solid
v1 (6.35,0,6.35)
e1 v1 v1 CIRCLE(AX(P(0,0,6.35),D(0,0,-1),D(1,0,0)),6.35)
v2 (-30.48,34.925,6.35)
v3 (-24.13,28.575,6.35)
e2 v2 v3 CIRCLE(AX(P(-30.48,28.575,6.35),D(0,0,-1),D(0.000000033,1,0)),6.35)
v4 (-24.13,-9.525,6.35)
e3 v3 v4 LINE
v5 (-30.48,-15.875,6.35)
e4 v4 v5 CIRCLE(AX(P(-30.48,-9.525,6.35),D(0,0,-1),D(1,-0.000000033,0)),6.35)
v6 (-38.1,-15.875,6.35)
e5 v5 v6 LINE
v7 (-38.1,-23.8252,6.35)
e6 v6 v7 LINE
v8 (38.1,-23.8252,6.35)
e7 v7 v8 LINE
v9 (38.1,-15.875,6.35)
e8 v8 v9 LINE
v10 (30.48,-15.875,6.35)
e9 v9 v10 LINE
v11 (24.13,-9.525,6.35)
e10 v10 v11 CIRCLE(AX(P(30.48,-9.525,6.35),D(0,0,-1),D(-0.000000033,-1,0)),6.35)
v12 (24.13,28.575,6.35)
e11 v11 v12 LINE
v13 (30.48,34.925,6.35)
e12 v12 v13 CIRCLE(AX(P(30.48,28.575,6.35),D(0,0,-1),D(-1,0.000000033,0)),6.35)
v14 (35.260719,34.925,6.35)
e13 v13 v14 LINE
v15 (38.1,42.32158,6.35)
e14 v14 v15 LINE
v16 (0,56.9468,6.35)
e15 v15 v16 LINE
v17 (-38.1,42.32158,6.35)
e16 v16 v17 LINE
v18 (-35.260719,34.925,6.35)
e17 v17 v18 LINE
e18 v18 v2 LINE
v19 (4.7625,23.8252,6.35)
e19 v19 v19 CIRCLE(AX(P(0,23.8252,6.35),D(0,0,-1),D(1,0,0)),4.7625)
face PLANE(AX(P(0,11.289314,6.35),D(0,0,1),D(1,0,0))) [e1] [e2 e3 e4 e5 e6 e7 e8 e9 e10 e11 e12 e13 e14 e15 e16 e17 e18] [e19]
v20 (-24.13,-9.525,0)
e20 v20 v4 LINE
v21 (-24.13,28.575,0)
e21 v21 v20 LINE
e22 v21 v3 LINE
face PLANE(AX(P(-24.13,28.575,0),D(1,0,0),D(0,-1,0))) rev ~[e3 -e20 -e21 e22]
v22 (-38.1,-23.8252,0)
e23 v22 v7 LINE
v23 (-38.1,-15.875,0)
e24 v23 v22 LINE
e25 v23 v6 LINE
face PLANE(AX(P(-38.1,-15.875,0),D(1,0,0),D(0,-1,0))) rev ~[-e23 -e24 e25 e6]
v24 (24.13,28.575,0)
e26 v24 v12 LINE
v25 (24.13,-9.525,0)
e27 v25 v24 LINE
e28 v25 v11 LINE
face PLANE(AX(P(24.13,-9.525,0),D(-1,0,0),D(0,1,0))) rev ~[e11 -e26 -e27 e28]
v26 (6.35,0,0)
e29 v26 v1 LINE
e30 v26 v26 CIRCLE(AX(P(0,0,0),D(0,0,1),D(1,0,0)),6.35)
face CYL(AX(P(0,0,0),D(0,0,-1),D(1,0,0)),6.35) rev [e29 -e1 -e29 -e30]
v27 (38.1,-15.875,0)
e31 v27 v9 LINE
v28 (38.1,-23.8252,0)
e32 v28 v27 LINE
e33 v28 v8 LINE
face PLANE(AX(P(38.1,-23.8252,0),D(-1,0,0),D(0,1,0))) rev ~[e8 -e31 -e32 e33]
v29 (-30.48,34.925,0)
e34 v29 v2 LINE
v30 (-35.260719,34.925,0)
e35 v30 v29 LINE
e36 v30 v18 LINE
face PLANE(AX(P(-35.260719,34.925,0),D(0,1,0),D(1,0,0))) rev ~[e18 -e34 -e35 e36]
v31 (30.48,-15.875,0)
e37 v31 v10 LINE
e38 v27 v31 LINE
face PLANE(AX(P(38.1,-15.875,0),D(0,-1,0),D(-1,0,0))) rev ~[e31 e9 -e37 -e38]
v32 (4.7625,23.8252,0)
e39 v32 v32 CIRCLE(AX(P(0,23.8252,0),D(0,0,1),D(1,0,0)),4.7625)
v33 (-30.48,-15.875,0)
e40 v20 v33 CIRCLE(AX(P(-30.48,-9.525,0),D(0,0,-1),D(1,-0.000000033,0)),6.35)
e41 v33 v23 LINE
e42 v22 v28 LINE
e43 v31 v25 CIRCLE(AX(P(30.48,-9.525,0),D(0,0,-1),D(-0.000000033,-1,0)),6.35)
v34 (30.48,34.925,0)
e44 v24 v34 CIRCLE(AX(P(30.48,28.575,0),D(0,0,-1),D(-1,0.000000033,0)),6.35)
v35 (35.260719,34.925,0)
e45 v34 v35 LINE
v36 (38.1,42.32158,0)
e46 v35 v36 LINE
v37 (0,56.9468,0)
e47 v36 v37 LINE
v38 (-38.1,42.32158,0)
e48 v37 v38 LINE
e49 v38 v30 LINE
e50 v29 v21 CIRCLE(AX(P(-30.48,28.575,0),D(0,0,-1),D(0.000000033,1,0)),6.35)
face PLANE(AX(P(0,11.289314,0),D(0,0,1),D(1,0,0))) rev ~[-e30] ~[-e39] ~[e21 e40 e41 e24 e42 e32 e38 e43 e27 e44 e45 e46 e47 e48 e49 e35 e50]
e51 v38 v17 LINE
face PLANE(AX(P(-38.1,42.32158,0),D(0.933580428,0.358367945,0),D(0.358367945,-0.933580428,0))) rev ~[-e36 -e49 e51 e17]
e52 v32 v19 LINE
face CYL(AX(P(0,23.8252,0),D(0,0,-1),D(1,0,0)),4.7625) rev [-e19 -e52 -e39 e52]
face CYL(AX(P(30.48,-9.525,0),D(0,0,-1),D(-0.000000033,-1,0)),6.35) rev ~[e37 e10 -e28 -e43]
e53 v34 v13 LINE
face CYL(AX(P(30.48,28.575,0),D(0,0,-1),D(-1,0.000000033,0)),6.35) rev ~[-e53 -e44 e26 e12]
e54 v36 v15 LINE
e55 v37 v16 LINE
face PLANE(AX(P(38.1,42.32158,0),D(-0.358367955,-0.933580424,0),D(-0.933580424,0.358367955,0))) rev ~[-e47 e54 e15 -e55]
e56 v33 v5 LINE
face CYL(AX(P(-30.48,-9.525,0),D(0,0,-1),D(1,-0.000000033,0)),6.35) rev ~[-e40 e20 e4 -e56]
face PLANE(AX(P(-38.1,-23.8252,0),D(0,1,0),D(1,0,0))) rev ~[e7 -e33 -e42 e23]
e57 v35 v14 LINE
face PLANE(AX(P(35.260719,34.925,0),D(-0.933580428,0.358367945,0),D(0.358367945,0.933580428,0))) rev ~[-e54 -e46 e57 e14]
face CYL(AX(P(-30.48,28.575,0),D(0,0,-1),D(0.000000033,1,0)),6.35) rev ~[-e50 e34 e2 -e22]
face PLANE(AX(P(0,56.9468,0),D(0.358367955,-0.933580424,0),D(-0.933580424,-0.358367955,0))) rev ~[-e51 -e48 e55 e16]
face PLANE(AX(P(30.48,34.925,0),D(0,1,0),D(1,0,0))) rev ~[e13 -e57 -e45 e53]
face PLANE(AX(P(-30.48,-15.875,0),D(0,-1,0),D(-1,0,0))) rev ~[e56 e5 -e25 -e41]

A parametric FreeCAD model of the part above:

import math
import FreeCAD as App
import Part
import Sketcher

V = App.Vector
Q = App.Units.Quantity

doc = App.newDocument("Part")
body = doc.addObject("PartDesign::Body", "Body")

# Sketch on XY plane
sketch1 = body.newObject("Sketcher::SketchObject", "Sketch")
sketch1.AttachmentSupport = (doc.getObject("XY_Plane"), [""])
sketch1.MapMode = "FlatFace"
sketch1.addGeometry([
    Part.LineSegment(V(-38.1, -15.9, 0), V(-38.1, -23.8, 0)),  # 0
    Part.LineSegment(V(-38.1, -23.8, 0), V(38.1, -23.8, 0)),  # 1
    Part.LineSegment(V(38.1, -23.8, 0), V(38.1, -15.9, 0)),  # 2
    Part.LineSegment(V(38.1, -15.9, 0), V(30.5, -15.9, 0)),  # 3
    Part.ArcOfCircle(Part.Circle(V(30.5, -9.5, 0), V(0, 0, 1), 6.4), math.radians(-180), math.radians(-90)),  # 4
    Part.LineSegment(V(24.1, -9.5, 0), V(24.1, 28.6, 0)),  # 5
    Part.ArcOfCircle(Part.Circle(V(30.5, 28.6, 0), V(0, 0, 1), 6.4), math.radians(90), math.radians(180)),  # 6
    Part.LineSegment(V(30.5, 34.9, 0), V(35.3, 34.9, 0)),  # 7
    Part.LineSegment(V(35.3, 34.9, 0), V(38.1, 42.3, 0)),  # 8
    Part.LineSegment(V(38.1, 42.3, 0), V(0, 56.9, 0)),  # 9
    Part.LineSegment(V(0, 56.9, 0), V(-38.1, 42.3, 0)),  # 10
    Part.LineSegment(V(-38.1, 42.3, 0), V(-35.3, 34.9, 0)),  # 11
    Part.LineSegment(V(-35.3, 34.9, 0), V(-30.5, 34.9, 0)),  # 12
    Part.ArcOfCircle(Part.Circle(V(-30.5, 28.6, 0), V(0, 0, 1), 6.4), math.radians(0), math.radians(90)),  # 13
    Part.LineSegment(V(-24.1, 28.6, 0), V(-24.1, -9.5, 0)),  # 14
    Part.ArcOfCircle(Part.Circle(V(-30.5, -9.5, 0), V(0, 0, 1), 6.4), math.radians(-90), math.radians(0)),  # 15
    Part.LineSegment(V(-30.5, -15.9, 0), V(-38.1, -15.9, 0)),  # 16
], False)
sketch1.addConstraint([
    Sketcher.Constraint("Coincident", 0, 2, 1, 1),
    Sketcher.Constraint("Coincident", 1, 2, 2, 1),
    Sketcher.Constraint("Coincident", 2, 2, 3, 1),
    Sketcher.Constraint("Tangent", 3, 2, 4, 2),
    Sketcher.Constraint("Tangent", 4, 1, 5, 1),
    Sketcher.Constraint("Tangent", 5, 2, 6, 2),
    Sketcher.Constraint("Tangent", 6, 1, 7, 1),
    Sketcher.Constraint("Coincident", 7, 2, 8, 1),
    Sketcher.Constraint("Coincident", 8, 2, 9, 1),
    Sketcher.Constraint("Coincident", 9, 2, 10, 1),
    Sketcher.Constraint("Coincident", 10, 2, 11, 1),
    Sketcher.Constraint("Coincident", 11, 2, 12, 1),
    Sketcher.Constraint("Tangent", 12, 2, 13, 2),
    Sketcher.Constraint("Tangent", 13, 1, 14, 1),
    Sketcher.Constraint("Tangent", 14, 2, 15, 2),
    Sketcher.Constraint("Tangent", 15, 1, 16, 1),
    Sketcher.Constraint("Coincident", 16, 2, 0, 1),
    Sketcher.Constraint("Vertical", 0),
    Sketcher.Constraint("Horizontal", 1),
    Sketcher.Constraint("Vertical", 2),
    Sketcher.Constraint("Horizontal", 3),
    Sketcher.Constraint("Vertical", 5),
    Sketcher.Constraint("Horizontal", 7),
    Sketcher.Constraint("Horizontal", 12),
    Sketcher.Constraint("Vertical", 14),
    Sketcher.Constraint("Horizontal", 16),
    Sketcher.Constraint("Equal", 4, 6),
    Sketcher.Constraint("Equal", 6, 13),
    Sketcher.Constraint("Equal", 13, 15),
    Sketcher.Constraint("Symmetric", 6, 3, 13, 3, -2),
    Sketcher.Constraint("Symmetric", 8, 2, 10, 2, -2),
    Sketcher.Constraint("Symmetric", 2, 2, 16, 2, -2),
    Sketcher.Constraint("PointOnObject", 9, 2, -2),
    Sketcher.Constraint("Perpendicular", 8, 9),
    Sketcher.Constraint("Perpendicular", 10, 11),
    Sketcher.Constraint("Vertical", 2, 2, 8, 2),
    Sketcher.Constraint("DistanceX", 1, 1, 1, 2, Q("3 in")),
    Sketcher.Constraint("Radius", 4, Q("0.25 in")),
    Sketcher.Constraint("DistanceX", 3, 2, 3, 1, Q("0.3 in")),
    Sketcher.Constraint("DistanceY", 5, 1, 5, 2, Q("1.5 in")),
    Sketcher.Constraint("Angle", 8, Q("69 deg")),
    Sketcher.Constraint("DistanceY", 0, 2, 0, 1, Q("0.313 in")),
    Sketcher.Constraint("DistanceY", 4, 3, -1, 1, Q("0.375 in")),
    Sketcher.Constraint("DistanceY", -1, 1, 9, 2, Q("2.242 in")),
])
pad1 = body.newObject("PartDesign::Pad", "Pad")
pad1.Profile = sketch1
pad1.Length = Q("0.25 in")

# Sketch on XY plane
sketch2 = body.newObject("Sketcher::SketchObject", "Sketch001")
sketch2.AttachmentSupport = (doc.getObject("XY_Plane"), [""])
sketch2.MapMode = "FlatFace"
sketch2.addGeometry([
    Part.Circle(V(0, 0, 0), V(0, 0, 1), 6.3),
    Part.Circle(V(0, 23.8, 0), V(0, 0, 1), 4.8),
], False)
sketch2.addConstraint([
    Sketcher.Constraint("Coincident", 0, 3, -1, 1),
    Sketcher.Constraint("PointOnObject", 1, 3, -2),
    Sketcher.Constraint("Diameter", 0, Q("0.5 in")),
    Sketcher.Constraint("Diameter", 1, Q("0.375 in")),
    Sketcher.Constraint("DistanceY", -1, 1, 1, 3, Q("0.938 in")),
])
pocket1 = body.newObject("PartDesign::Pocket", "Pocket")
pocket1.Profile = sketch2
pocket1.Type = "ThroughAll"
pocket1.Reversed = True

doc.recompute()
